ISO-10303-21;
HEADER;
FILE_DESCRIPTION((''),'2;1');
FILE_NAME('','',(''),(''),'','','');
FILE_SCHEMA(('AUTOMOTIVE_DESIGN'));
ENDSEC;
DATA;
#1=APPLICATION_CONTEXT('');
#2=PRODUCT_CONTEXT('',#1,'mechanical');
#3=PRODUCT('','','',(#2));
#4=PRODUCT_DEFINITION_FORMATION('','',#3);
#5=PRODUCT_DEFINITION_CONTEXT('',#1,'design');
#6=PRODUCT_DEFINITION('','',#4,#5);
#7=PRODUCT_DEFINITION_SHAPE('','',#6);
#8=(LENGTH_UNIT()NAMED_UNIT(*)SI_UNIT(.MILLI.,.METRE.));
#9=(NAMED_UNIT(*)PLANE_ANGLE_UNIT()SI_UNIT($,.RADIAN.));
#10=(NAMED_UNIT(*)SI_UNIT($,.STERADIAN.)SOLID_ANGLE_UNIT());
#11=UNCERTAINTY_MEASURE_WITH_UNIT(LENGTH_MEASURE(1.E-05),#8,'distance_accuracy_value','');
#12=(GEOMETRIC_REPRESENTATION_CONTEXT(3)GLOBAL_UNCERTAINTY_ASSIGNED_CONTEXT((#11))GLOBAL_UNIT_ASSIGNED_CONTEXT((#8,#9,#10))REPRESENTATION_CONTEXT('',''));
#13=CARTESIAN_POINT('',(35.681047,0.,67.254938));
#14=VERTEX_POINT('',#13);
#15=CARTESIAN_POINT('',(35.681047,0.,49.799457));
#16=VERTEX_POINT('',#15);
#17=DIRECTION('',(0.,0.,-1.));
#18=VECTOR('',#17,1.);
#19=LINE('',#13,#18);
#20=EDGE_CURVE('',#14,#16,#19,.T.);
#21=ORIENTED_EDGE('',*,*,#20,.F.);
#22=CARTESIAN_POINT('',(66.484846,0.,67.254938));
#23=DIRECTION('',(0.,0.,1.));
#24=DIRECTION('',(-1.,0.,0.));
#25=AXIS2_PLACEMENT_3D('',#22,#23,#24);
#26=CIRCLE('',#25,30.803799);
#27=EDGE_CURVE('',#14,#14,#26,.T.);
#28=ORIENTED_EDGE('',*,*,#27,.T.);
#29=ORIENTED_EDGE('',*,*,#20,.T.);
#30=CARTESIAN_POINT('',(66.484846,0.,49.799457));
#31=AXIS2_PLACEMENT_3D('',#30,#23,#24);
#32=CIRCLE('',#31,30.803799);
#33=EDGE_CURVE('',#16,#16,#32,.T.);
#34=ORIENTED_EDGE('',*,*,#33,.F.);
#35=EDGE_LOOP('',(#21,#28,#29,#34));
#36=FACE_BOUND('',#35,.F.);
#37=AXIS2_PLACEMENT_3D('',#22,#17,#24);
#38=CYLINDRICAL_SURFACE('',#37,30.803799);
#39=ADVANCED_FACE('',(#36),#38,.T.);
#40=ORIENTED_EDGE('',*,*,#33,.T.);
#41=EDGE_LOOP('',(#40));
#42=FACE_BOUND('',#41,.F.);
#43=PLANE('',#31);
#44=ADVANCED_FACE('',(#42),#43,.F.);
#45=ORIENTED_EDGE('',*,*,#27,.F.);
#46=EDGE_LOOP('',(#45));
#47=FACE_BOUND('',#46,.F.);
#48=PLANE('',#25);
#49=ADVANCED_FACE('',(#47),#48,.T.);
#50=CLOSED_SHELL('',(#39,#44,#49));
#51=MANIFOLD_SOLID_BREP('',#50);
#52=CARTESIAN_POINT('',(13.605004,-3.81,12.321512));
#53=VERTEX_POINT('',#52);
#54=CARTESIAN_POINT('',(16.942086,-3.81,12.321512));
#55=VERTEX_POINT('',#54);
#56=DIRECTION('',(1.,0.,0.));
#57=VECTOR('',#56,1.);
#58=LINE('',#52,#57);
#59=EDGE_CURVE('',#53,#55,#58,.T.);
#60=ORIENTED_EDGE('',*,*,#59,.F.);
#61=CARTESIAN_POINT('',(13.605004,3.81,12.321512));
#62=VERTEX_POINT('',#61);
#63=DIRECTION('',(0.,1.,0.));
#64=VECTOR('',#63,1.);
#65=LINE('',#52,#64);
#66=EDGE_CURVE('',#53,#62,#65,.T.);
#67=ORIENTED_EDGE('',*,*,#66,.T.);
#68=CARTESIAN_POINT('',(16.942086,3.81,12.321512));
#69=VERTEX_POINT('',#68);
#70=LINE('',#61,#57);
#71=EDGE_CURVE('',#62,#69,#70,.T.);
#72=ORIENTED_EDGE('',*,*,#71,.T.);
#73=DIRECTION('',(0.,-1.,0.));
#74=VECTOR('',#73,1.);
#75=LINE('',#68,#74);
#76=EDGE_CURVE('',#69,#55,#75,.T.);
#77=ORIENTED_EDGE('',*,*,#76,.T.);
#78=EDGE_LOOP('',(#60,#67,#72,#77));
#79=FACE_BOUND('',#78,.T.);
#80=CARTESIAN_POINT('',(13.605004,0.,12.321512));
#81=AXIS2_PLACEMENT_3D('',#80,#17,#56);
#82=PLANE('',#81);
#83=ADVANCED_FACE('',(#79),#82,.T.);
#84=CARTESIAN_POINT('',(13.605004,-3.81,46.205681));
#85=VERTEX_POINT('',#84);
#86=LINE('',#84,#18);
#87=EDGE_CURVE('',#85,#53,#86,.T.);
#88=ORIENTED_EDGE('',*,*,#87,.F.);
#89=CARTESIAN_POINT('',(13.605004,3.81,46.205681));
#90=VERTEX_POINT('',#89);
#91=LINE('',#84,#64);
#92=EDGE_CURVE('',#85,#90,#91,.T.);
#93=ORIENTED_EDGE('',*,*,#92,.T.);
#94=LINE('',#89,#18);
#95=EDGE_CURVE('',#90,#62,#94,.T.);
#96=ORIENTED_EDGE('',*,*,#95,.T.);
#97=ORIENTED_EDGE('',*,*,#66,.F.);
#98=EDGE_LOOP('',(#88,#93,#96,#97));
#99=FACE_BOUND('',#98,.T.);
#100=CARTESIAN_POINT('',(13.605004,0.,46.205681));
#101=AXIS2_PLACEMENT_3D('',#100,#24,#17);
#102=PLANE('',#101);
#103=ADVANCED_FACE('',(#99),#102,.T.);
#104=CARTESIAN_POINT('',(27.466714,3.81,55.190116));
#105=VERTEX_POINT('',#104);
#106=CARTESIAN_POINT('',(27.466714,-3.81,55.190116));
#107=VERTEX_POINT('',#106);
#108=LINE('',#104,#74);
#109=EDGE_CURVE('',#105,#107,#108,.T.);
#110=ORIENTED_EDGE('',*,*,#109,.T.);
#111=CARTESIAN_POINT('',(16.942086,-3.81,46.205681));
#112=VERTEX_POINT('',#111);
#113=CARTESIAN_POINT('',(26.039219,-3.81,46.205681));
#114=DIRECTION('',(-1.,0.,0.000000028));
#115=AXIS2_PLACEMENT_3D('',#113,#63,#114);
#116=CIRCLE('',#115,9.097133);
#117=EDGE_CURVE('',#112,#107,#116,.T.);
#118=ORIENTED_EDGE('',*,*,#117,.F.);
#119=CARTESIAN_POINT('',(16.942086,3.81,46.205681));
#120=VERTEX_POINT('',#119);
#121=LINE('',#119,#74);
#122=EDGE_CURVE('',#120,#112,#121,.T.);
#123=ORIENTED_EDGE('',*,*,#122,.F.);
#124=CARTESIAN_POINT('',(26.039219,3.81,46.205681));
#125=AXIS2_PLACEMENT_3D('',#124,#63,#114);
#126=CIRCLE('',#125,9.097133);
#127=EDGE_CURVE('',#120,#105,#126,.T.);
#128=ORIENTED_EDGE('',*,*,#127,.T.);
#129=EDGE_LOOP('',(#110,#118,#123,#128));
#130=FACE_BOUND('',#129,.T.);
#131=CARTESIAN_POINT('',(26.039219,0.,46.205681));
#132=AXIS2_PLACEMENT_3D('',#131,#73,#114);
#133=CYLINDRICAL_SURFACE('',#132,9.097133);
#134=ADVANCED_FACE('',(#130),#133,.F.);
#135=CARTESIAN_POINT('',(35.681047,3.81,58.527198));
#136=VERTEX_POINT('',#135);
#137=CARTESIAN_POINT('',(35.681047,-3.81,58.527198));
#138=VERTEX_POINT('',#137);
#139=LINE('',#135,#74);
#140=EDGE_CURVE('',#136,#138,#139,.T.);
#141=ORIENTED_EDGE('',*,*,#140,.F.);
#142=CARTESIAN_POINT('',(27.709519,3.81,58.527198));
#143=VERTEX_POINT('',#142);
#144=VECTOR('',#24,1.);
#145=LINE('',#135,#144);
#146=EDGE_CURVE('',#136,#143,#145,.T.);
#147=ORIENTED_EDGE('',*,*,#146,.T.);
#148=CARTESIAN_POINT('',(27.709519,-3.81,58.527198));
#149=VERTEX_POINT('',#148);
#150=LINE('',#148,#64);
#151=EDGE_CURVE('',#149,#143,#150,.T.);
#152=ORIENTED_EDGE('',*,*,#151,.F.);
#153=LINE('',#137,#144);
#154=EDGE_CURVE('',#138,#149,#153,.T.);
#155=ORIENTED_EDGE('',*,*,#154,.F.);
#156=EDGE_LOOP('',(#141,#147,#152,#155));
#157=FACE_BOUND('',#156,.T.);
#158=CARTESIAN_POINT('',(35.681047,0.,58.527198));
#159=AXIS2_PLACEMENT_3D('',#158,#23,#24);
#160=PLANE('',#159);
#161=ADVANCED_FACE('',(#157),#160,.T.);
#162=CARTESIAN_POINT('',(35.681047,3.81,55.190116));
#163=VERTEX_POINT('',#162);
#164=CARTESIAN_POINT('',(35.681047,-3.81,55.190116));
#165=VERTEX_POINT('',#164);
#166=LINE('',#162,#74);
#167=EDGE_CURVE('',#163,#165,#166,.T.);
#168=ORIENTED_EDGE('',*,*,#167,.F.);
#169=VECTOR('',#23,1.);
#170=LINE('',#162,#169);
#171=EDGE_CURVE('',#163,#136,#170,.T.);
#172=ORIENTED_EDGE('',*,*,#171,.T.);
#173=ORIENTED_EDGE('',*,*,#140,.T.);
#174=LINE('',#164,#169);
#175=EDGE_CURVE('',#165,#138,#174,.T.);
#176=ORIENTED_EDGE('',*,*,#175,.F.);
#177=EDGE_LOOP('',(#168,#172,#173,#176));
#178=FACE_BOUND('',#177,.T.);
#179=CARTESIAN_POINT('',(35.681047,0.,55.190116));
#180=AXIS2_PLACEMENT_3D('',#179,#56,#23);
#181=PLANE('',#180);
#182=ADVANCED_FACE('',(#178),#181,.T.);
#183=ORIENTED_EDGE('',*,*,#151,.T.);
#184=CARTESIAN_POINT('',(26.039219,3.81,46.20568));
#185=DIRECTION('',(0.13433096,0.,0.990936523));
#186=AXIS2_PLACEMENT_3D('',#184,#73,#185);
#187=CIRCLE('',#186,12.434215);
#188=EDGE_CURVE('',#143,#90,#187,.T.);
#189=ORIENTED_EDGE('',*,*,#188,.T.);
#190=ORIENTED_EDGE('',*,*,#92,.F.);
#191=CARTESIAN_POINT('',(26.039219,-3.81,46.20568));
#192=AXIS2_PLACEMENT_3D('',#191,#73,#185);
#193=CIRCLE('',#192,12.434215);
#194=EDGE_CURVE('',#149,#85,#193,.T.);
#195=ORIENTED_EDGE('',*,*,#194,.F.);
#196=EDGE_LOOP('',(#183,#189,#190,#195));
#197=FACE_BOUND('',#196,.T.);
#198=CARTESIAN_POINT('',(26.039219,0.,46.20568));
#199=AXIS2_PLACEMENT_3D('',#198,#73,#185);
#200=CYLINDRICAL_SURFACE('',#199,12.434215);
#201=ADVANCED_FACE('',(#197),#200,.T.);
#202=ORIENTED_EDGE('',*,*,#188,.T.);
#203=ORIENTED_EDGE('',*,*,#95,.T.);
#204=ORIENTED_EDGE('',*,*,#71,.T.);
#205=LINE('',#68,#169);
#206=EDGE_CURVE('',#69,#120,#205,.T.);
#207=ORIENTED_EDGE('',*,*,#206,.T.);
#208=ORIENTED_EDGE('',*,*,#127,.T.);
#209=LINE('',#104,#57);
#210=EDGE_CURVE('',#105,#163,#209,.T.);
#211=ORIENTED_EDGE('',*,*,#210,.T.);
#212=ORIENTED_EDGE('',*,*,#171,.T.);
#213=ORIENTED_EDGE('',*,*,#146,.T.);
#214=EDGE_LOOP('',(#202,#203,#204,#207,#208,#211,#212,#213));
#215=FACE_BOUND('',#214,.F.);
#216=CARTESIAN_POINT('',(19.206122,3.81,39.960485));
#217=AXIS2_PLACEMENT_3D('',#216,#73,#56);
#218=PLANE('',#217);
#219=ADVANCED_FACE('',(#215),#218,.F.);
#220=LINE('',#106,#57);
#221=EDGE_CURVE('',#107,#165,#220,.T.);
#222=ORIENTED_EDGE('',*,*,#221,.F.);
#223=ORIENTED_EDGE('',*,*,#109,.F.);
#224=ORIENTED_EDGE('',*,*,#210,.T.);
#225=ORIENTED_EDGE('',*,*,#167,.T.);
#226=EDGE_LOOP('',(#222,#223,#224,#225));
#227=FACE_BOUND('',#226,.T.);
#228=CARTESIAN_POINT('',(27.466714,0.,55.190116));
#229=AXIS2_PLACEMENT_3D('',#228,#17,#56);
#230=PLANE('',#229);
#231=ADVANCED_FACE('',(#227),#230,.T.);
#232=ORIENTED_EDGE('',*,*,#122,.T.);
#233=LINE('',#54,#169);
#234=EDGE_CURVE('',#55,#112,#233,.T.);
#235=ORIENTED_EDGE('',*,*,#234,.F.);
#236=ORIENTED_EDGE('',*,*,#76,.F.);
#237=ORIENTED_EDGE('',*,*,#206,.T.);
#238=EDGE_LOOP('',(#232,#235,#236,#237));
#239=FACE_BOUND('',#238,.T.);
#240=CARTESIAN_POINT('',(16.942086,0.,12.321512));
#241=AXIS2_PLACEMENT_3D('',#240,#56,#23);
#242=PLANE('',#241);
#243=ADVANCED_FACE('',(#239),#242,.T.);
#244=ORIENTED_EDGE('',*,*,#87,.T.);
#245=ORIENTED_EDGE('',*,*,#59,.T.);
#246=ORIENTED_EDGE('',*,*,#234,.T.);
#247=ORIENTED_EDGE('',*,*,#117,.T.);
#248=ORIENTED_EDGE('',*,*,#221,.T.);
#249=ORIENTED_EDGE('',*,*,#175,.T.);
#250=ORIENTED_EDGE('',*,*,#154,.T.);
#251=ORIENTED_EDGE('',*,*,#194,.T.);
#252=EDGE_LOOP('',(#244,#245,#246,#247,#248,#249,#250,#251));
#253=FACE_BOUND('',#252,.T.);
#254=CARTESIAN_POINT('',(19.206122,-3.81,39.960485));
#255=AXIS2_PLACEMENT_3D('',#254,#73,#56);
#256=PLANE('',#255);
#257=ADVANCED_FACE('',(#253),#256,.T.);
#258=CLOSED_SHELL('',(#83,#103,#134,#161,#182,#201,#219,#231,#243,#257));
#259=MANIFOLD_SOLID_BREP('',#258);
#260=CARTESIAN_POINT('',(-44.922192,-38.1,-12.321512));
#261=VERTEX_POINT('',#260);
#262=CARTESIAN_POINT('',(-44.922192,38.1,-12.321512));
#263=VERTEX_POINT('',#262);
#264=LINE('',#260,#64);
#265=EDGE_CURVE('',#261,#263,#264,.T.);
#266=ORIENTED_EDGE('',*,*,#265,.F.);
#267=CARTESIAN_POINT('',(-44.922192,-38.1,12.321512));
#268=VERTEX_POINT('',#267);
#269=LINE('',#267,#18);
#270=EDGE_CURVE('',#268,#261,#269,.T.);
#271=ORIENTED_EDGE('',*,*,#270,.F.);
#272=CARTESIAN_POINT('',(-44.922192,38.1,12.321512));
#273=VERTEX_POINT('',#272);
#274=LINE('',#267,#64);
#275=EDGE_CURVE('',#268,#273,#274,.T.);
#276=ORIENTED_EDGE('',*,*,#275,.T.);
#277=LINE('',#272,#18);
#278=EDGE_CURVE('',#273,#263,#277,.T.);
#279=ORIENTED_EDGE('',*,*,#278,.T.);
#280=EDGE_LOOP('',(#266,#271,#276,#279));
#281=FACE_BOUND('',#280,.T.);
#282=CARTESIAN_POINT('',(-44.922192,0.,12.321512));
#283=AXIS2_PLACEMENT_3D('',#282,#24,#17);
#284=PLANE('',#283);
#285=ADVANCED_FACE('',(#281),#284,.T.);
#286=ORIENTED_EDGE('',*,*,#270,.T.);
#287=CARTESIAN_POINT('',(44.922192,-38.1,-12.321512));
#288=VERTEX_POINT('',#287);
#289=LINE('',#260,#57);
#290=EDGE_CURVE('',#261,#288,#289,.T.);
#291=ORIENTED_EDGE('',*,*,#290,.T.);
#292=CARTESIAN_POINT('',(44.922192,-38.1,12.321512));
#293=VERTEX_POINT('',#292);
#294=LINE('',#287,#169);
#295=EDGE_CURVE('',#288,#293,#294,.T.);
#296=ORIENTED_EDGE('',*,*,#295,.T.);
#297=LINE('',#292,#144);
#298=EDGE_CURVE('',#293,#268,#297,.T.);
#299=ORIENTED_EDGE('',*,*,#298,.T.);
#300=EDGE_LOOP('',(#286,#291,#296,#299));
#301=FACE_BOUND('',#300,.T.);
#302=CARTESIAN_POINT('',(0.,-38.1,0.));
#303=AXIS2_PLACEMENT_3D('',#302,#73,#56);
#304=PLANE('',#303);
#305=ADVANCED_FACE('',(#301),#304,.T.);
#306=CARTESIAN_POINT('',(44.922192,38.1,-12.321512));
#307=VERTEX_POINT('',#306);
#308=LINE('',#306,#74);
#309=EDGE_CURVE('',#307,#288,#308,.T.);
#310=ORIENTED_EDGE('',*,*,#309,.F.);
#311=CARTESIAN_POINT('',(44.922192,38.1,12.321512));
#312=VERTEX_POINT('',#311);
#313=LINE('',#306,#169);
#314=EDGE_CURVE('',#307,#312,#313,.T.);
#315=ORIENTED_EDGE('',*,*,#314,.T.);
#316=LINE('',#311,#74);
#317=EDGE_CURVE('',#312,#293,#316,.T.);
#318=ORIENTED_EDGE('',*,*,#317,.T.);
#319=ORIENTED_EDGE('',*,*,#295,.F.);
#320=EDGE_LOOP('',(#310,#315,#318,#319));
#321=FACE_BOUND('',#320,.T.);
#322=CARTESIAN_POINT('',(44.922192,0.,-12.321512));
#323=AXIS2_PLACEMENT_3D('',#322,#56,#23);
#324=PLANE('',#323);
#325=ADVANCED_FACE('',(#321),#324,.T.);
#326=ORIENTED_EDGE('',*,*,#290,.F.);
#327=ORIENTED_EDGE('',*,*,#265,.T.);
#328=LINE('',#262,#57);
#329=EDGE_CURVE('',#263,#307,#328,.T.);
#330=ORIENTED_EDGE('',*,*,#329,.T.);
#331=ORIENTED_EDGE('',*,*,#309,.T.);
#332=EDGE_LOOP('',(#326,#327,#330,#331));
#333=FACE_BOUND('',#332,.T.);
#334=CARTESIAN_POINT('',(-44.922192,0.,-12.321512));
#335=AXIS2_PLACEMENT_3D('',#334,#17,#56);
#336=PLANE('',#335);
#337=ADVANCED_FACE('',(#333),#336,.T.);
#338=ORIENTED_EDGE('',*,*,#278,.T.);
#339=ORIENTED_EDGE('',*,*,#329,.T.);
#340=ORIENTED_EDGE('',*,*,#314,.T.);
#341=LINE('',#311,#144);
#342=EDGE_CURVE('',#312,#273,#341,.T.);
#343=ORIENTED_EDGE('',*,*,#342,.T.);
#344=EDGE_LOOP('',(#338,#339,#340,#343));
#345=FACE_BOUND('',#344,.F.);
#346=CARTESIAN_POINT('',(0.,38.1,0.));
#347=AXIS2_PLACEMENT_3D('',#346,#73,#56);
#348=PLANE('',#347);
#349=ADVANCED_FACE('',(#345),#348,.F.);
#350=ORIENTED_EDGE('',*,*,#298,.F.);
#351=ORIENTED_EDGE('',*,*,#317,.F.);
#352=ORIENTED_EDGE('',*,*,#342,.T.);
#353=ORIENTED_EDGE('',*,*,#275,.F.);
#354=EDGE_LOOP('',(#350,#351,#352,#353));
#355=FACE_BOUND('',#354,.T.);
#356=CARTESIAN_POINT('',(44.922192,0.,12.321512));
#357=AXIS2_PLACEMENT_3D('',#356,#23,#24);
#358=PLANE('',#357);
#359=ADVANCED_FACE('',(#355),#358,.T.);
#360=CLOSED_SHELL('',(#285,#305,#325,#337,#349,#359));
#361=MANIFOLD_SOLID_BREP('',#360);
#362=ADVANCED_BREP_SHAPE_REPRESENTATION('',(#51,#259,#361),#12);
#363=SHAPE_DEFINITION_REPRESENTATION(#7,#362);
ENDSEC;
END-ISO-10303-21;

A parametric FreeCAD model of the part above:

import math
import FreeCAD as App
import Part
import Sketcher
from FreeCAD import Vector

doc = App.newDocument("Part")
params = doc.addObject("Spreadsheet::Sheet", "Params")
for row, (alias, value) in enumerate([
    ("pad1_length", "3 in"),
    ("revolution_angle", "360 deg"),
    ("pad2_length", "0.3 in"),
], start=1):
    params.set(f"A{row}", alias)
    params.set(f"B{row}", "=" + value)
    params.setAlias(f"B{row}", alias)

body = doc.addObject("PartDesign::Body", "Body")

# Sketch on XZ plane
sketch1 = body.newObject("Sketcher::SketchObject", "Sketch")
sketch1.AttachmentSupport = (doc.getObject("XZ_Plane"), [""])
sketch1.MapMode = "FlatFace"
sketch1.addGeometry([
    Part.LineSegment(Vector(-45, -12, 0), Vector(45, -12, 0)),
    Part.LineSegment(Vector(45, -12, 0), Vector(45, 12, 0)),
    Part.LineSegment(Vector(45, 12, 0), Vector(-45, 12, 0)),
    Part.LineSegment(Vector(-45, 12, 0), Vector(-45, -12, 0)),
], False)
sketch1.addConstraint([
    Sketcher.Constraint("Coincident", 0, 2, 1, 1),
    Sketcher.Constraint("Coincident", 1, 2, 2, 1),
    Sketcher.Constraint("Coincident", 2, 2, 3, 1),
    Sketcher.Constraint("Coincident", 3, 2, 0, 1),
    Sketcher.Constraint("Horizontal", 0),
    Sketcher.Constraint("Vertical", 1),
    Sketcher.Constraint("Horizontal", 2),
    Sketcher.Constraint("Vertical", 3),
    Sketcher.Constraint("Symmetric", 0, 2, 2, 2, -1, 1),
    Sketcher.Constraint("DistanceX", 0, 1, 0, 2, 89.844384),
    Sketcher.Constraint("DistanceY", 1, 1, 1, 2, 24.643024),
])
pad1 = body.newObject("PartDesign::Pad", "Pad")
pad1.Profile = sketch1
pad1.setExpression("Length", "Params.pad1_length")
pad1.Midplane = True
body2 = doc.addObject("PartDesign::Body", "Body001")

# Sketch on XZ plane
sketch2 = body2.newObject("Sketcher::SketchObject", "Sketch001")
sketch2.AttachmentSupport = (doc.getObject("XZ_Plane001"), [""])
sketch2.MapMode = "FlatFace"
sketch2.addGeometry([
    Part.LineSegment(Vector(36, 50, 0), Vector(66, 50, 0)),
    Part.LineSegment(Vector(66, 50, 0), Vector(66, 67, 0)),
    Part.LineSegment(Vector(66, 67, 0), Vector(36, 67, 0)),
    Part.LineSegment(Vector(36, 67, 0), Vector(36, 50, 0)),
], False)
sketch2.addGeometry(Part.LineSegment(Vector(66, 50, 0), Vector(66, 67, 0)), True)  # axis
sketch2.addConstraint([
    Sketcher.Constraint("Coincident", 0, 2, 1, 1),
    Sketcher.Constraint("Coincident", 1, 2, 2, 1),
    Sketcher.Constraint("Coincident", 2, 2, 3, 1),
    Sketcher.Constraint("Coincident", 3, 2, 0, 1),
    Sketcher.Constraint("Horizontal", 0),
    Sketcher.Constraint("Vertical", 1),
    Sketcher.Constraint("Horizontal", 2),
    Sketcher.Constraint("Vertical", 3),
    Sketcher.Constraint("Vertical", 4),
    Sketcher.Constraint("Coincident", 4, 1, 0, 2),
    Sketcher.Constraint("Horizontal", 2, 2, 4, 2),
    Sketcher.Constraint("DistanceX", 0, 1, 0, 2, 30.803799),
    Sketcher.Constraint("DistanceY", 1, 1, 1, 2, 17.455481),
    Sketcher.Constraint("DistanceX", -1, 1, 0, 2, 66.484846),
    Sketcher.Constraint("DistanceY", -1, 1, 0, 2, 49.799457),
])
revolution = body2.newObject("PartDesign::Revolution", "Revolution")
revolution.Profile = sketch2
revolution.ReferenceAxis = (sketch2, ["Axis0"])
revolution.setExpression("Angle", "Params.revolution_angle")
body3 = doc.addObject("PartDesign::Body", "Body002")

# Sketch on XZ plane
sketch3 = body3.newObject("Sketcher::SketchObject", "Sketch002")
sketch3.AttachmentSupport = (doc.getObject("XZ_Plane002"), [""])
sketch3.MapMode = "FlatFace"
sketch3.addGeometry([
    Part.LineSegment(Vector(13.6, 12.3, 0), Vector(16.9, 12.3, 0)),  # 0
    Part.LineSegment(Vector(16.9, 12.3, 0), Vector(16.9, 46.2, 0)),  # 1
    Part.ArcOfCircle(Part.Circle(Vector(26, 46.2, 0), Vector(0, 0, 1), 9.1), math.radians(81), math.radians(180)),  # 2
    Part.LineSegment(Vector(27.5, 55.2, 0), Vector(35.7, 55.2, 0)),  # 3
    Part.LineSegment(Vector(35.7, 55.2, 0), Vector(35.7, 58.5, 0)),  # 4
    Part.LineSegment(Vector(35.7, 58.5, 0), Vector(27.7, 58.5, 0)),  # 5
    Part.ArcOfCircle(Part.Circle(Vector(26, 46.2, 0), Vector(0, 0, 1), 12.4), math.radians(82), math.radians(180)),  # 6
    Part.LineSegment(Vector(13.6, 46.2, 0), Vector(13.6, 12.3, 0)),  # 7
], False)
sketch3.addConstraint([
    Sketcher.Constraint("Coincident", 0, 2, 1, 1),
    Sketcher.Constraint("Tangent", 1, 2, 2, 2),
    Sketcher.Constraint("Coincident", 2, 1, 3, 1),
    Sketcher.Constraint("Coincident", 3, 2, 4, 1),
    Sketcher.Constraint("Coincident", 4, 2, 5, 1),
    Sketcher.Constraint("Coincident", 5, 2, 6, 1),
    Sketcher.Constraint("Tangent", 6, 2, 7, 1),
    Sketcher.Constraint("Coincident", 7, 2, 0, 1),
    Sketcher.Constraint("Horizontal", 0),
    Sketcher.Constraint("Vertical", 1),
    Sketcher.Constraint("Horizontal", 3),
    Sketcher.Constraint("Vertical", 4),
    Sketcher.Constraint("Horizontal", 5),
    Sketcher.Constraint("Vertical", 7),
    Sketcher.Constraint("Coincident", 6, 3, 2, 3),
    Sketcher.Constraint("Equal", 0, 4),
    Sketcher.Constraint("Radius", 2, 9.097133),
    Sketcher.Constraint("Radius", 6, 12.434215),
    Sketcher.Constraint("DistanceY", 1, 1, 1, 2, 33.884169),
    Sketcher.Constraint("DistanceX", 2, 3, 5, 2, 1.6703),
    Sketcher.Constraint("DistanceX", 3, 1, 3, 2, 8.214333),
    Sketcher.Constraint("DistanceX", -1, 1, 2, 3, 26.039219),
    Sketcher.Constraint("DistanceY", -1, 1, 2, 3, 46.205681),
])
pad2 = body3.newObject("PartDesign::Pad", "Pad001")
pad2.Profile = sketch3
pad2.setExpression("Length", "Params.pad2_length")
pad2.Midplane = True

doc.recompute()
